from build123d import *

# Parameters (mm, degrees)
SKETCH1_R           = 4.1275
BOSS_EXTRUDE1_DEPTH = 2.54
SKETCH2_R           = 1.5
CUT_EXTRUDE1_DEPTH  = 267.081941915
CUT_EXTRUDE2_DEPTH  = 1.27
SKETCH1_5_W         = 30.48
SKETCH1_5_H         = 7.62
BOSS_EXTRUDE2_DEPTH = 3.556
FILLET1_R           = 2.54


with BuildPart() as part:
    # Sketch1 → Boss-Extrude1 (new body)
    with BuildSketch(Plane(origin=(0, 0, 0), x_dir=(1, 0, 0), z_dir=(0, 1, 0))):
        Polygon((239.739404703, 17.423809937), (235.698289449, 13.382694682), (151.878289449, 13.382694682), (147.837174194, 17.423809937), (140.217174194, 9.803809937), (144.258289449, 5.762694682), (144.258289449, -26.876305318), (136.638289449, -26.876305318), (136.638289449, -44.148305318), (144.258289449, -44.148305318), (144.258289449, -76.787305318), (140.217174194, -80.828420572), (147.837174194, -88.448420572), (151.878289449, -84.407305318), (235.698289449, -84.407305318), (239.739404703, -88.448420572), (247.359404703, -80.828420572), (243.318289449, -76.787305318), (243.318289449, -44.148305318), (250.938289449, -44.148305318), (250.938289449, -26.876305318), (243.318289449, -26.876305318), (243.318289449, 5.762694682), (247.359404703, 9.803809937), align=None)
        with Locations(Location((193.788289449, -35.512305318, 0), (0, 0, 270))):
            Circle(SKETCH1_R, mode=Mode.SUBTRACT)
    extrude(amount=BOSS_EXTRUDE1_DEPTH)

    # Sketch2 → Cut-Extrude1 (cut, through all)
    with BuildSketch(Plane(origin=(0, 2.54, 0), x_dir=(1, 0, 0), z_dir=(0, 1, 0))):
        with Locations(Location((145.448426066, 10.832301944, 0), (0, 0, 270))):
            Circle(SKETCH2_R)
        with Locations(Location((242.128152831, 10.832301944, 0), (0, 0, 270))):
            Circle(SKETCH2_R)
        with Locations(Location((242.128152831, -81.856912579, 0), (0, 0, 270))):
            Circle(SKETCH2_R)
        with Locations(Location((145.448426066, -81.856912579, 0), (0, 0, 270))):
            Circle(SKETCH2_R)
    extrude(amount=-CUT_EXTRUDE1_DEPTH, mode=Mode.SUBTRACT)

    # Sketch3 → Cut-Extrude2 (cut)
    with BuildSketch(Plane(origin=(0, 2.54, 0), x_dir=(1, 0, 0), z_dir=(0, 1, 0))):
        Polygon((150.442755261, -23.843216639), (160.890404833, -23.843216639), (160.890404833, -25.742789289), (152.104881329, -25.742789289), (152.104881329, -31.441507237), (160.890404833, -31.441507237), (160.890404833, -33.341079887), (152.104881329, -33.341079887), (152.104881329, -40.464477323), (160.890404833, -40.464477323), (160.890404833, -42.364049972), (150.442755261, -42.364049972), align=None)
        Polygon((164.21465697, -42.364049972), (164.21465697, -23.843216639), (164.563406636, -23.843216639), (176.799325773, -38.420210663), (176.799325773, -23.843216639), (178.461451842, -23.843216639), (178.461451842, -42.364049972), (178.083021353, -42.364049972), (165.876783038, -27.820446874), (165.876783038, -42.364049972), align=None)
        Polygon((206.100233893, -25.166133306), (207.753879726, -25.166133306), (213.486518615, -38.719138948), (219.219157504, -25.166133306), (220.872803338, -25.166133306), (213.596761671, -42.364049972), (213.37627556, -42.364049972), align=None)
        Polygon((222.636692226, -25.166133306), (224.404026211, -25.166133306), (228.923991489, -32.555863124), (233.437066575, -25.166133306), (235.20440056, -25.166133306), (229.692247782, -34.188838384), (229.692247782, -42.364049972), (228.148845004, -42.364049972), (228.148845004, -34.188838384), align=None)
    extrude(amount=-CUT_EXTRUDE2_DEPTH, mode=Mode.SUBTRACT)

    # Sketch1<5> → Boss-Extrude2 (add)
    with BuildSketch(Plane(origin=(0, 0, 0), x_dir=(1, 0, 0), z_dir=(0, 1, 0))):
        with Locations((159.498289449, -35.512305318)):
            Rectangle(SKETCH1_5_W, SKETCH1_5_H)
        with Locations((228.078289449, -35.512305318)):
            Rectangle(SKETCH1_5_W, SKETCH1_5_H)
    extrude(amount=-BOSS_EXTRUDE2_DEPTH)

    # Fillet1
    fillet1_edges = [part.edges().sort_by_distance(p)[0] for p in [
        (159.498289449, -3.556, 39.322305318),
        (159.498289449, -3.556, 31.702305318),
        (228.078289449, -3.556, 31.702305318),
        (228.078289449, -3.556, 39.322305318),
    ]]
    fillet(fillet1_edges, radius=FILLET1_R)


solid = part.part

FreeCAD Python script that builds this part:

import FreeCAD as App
import Part
import Sketcher
Q = App.Units.Quantity


def edges_at(feature, points):
    """Names of the edges that pass closest to the given points."""
    edges = feature.Shape.Edges
    near = lambda p: min(range(len(edges)), key=lambda i: edges[i].distToShape(Part.Vertex(*p))[0])
    return sorted({f"Edge{near(p) + 1}" for p in points})


def add_polygon(sketch, points):
    """Adds a closed chain of lines whose ends are joined by coincident constraints."""
    first, n = sketch.GeometryCount, len(points)
    for a, b in zip(points, points[1:] + points[:1]):
        sketch.addGeometry(Part.LineSegment(App.Vector(*a, 0), App.Vector(*b, 0)), False)
    for i in range(n):
        sketch.addConstraint(Sketcher.Constraint("Coincident", first + i, 2, first + (i + 1) % n, 1))

doc = App.newDocument("Part")
body = doc.addObject("PartDesign::Body", "Body")

sketch1 = body.newObject("Sketcher::SketchObject", "Sketch")
sketch1.AttachmentSupport = (doc.getObject("XZ_Plane"), [""])
sketch1.MapMode = "FlatFace"
add_polygon(sketch1, [(239.7, -17.4), (235.7, -13.4), (151.9, -13.4), (147.8, -17.4), (140.2, -9.8), (144.3, -5.8), (144.3, 26.9), (136.6, 26.9), (136.6, 44.1), (144.3, 44.1), (144.3, 76.8), (140.2, 80.8), (147.8, 88.4), (151.9, 84.4), (235.7, 84.4), (239.7, 88.4), (247.4, 80.8), (243.3, 76.8), (243.3, 44.1), (250.9, 44.1), (250.9, 26.9), (243.3, 26.9), (243.3, -5.8), (247.4, -9.8)])
sketch1.addGeometry(Part.Circle(App.Vector(193.8, 35.5, 0), App.Vector(0, 0, 1), 4.1), False)
sketch1.addConstraint([
    Sketcher.Constraint("Horizontal", 1),
    Sketcher.Constraint("Vertical", 5),
    Sketcher.Constraint("Horizontal", 6),
    Sketcher.Constraint("Vertical", 7),
    Sketcher.Constraint("Horizontal", 8),
    Sketcher.Constraint("Vertical", 9),
    Sketcher.Constraint("Horizontal", 13),
    Sketcher.Constraint("Vertical", 17),
    Sketcher.Constraint("Horizontal", 18),
    Sketcher.Constraint("Vertical", 19),
    Sketcher.Constraint("Horizontal", 20),
    Sketcher.Constraint("Vertical", 21),
    Sketcher.Constraint("Perpendicular", 0, 2),
    Sketcher.Constraint("Perpendicular", 2, 3),
    Sketcher.Constraint("Perpendicular", 3, 4),
    Sketcher.Constraint("Perpendicular", 4, 10),
    Sketcher.Constraint("Perpendicular", 10, 11),
    Sketcher.Constraint("Perpendicular", 11, 12),
    Sketcher.Constraint("Perpendicular", 12, 14),
    Sketcher.Constraint("Perpendicular", 14, 15),
    Sketcher.Constraint("Perpendicular", 15, 16),
    Sketcher.Constraint("Perpendicular", 16, 22),
    Sketcher.Constraint("Perpendicular", 22, 23),
    Sketcher.Constraint("Horizontal", 11, 2, 14, 2),
    Sketcher.Constraint("Horizontal", 10, 2, 15, 2),
    Sketcher.Constraint("Horizontal", 9, 2, 16, 2),
    Sketcher.Constraint("Horizontal", 8, 2, 17, 2),
    Sketcher.Constraint("Horizontal", 6, 2, 19, 2),
    Sketcher.Constraint("Horizontal", 4, 2, 21, 2),
    Sketcher.Constraint("Horizontal", 3, 2, 22, 2),
    Sketcher.Constraint("Horizontal", 2, 2, 23, 2),
    Sketcher.Constraint("Vertical", 5, 2, 8, 2),
    Sketcher.Constraint("Vertical", 3, 2, 10, 2),
    Sketcher.Constraint("Vertical", 2, 2, 11, 2),
    Sketcher.Constraint("Vertical", 1, 2, 12, 2),
    Sketcher.Constraint("Vertical", 0, 2, 13, 2),
    Sketcher.Constraint("Vertical", 17, 2, 20, 2),
    Sketcher.Constraint("Equal", 8, 18),
    Sketcher.Constraint("Equal", 5, 9),
    Sketcher.Constraint("Equal", 2, 4),
    Sketcher.Constraint("Diameter", 24, Q("0.325 in")),
    Sketcher.Constraint("DistanceX", 1, 2, 1, 1, Q("3.3 in")),
    Sketcher.Constraint("DistanceX", 6, 2, 6, 1, Q("0.3 in")),
    Sketcher.Constraint("DistanceY", 7, 1, 7, 2, Q("0.68 in")),
    Sketcher.Constraint("DistanceX", 3, 2, 2, 2, Q("0.3 in")),
    Sketcher.Constraint("DistanceY", 5, 1, 5, 2, Q("1.285 in")),
    Sketcher.Constraint("DistanceX", 24, 3, 0, 2, Q("1.65 in")),
    Sketcher.Constraint("DistanceY", 5, 2, 24, 3, Q("0.34 in")),
    Sketcher.Constraint("Distance", 0, Q("0.225 in")),
    Sketcher.Constraint("DistanceX", -1, 1, 24, 3, 193.788289),
    Sketcher.Constraint("DistanceY", 2, 2, -1, 1, 17.42381),
])
pad1 = body.newObject("PartDesign::Pad", "Pad")
pad1.Profile = sketch1
pad1.Length = Q("0.1 in")
pad1.Reversed = True

sketch2 = body.newObject("Sketcher::SketchObject", "Sketch001")
sketch2.AttachmentSupport = (doc.getObject("XZ_Plane"), [""])
sketch2.MapMode = "FlatFace"
sketch2.AttachmentOffset = App.Placement(App.Vector(0, 0, -0.1 * 25.4), App.Rotation())
sketch2.addGeometry([
    Part.Circle(App.Vector(145.4, -10.8, 0), App.Vector(0, 0, 1), 1.5),
    Part.Circle(App.Vector(242.1, -10.8, 0), App.Vector(0, 0, 1), 1.5),
    Part.Circle(App.Vector(242.1, 81.9, 0), App.Vector(0, 0, 1), 1.5),
    Part.Circle(App.Vector(145.4, 81.9, 0), App.Vector(0, 0, 1), 1.5),
], False)
sketch2.addConstraint([
    Sketcher.Constraint("Equal", 0, 1),
    Sketcher.Constraint("Equal", 1, 2),
    Sketcher.Constraint("Equal", 2, 3),
    Sketcher.Constraint("Horizontal", 0, 3, 1, 3),
    Sketcher.Constraint("Horizontal", 2, 3, 3, 3),
    Sketcher.Constraint("Vertical", 1, 3, 2, 3),
    Sketcher.Constraint("Vertical", 0, 3, 3, 3),
    Sketcher.Constraint("Diameter", 0, 3.0),
    Sketcher.Constraint("DistanceY", 0, 3, -1, 1, 10.832302),
    Sketcher.Constraint("DistanceX", -1, 1, 0, 3, 145.448426),
    Sketcher.Constraint("DistanceX", -1, 1, 1, 3, 242.128153),
    Sketcher.Constraint("DistanceY", -1, 1, 2, 3, 81.856913),
])
pocket1 = body.newObject("PartDesign::Pocket", "Pocket")
pocket1.Profile = sketch2
pocket1.Type = "ThroughAll"
pocket1.Reversed = True

sketch3 = body.newObject("Sketcher::SketchObject", "Sketch002")
sketch3.AttachmentSupport = (doc.getObject("XZ_Plane"), [""])
sketch3.MapMode = "FlatFace"
sketch3.AttachmentOffset = App.Placement(App.Vector(0, 0, -0.1 * 25.4), App.Rotation())
add_polygon(sketch3, [(160.89, 23.84), (150.44, 23.84), (150.44, 42.36), (160.89, 42.36), (160.89, 40.46), (152.1, 40.46), (152.1, 33.34), (160.89, 33.34), (160.89, 31.44), (152.1, 31.44), (152.1, 25.74), (160.89, 25.74)])
add_polygon(sketch3, [(164.21, 23.84), (164.21, 42.36), (165.88, 42.36), (165.88, 27.82), (178.08, 42.36), (178.46, 42.36), (178.46, 23.84), (176.8, 23.84), (176.8, 38.42), (164.56, 23.84)])
add_polygon(sketch3, [(207.75, 25.17), (206.1, 25.17), (213.38, 42.36), (213.6, 42.36), (220.87, 25.17), (219.22, 25.17), (213.49, 38.72)])
add_polygon(sketch3, [(224.4, 25.17), (222.64, 25.17), (228.15, 34.19), (228.15, 42.36), (229.69, 42.36), (229.69, 34.19), (235.2, 25.17), (233.44, 25.17), (228.92, 32.56)])
sketch3.addConstraint([
    Sketcher.Constraint("Horizontal", 0),
    Sketcher.Constraint("Vertical", 1),
    Sketcher.Constraint("Horizontal", 2),
    Sketcher.Constraint("Vertical", 3),
    Sketcher.Constraint("Horizontal", 4),
    Sketcher.Constraint("Vertical", 5),
    Sketcher.Constraint("Horizontal", 6),
    Sketcher.Constraint("Vertical", 7),
    Sketcher.Constraint("Horizontal", 8),
    Sketcher.Constraint("Vertical", 9),
    Sketcher.Constraint("Horizontal", 10),
    Sketcher.Constraint("Vertical", 11),
    Sketcher.Constraint("Vertical", 12),
    Sketcher.Constraint("Horizontal", 13),
    Sketcher.Constraint("Vertical", 14),
    Sketcher.Constraint("Horizontal", 16),
    Sketcher.Constraint("Vertical", 17),
    Sketcher.Constraint("Horizontal", 18),
    Sketcher.Constraint("Vertical", 19),
    Sketcher.Constraint("Horizontal", 21),
    Sketcher.Constraint("Horizontal", 22),
    Sketcher.Constraint("Horizontal", 24),
    Sketcher.Constraint("Horizontal", 26),
    Sketcher.Constraint("Horizontal", 29),
    Sketcher.Constraint("Vertical", 31),
    Sketcher.Constraint("Horizontal", 32),
    Sketcher.Constraint("Vertical", 33),
    Sketcher.Constraint("Horizontal", 35),
    Sketcher.Constraint("Horizontal", 2, 2, 12, 2),
    Sketcher.Constraint("Horizontal", 13, 2, 15, 2),
    Sketcher.Constraint("Horizontal", 11, 2, 17, 2),
    Sketcher.Constraint("Horizontal", 18, 2, 20, 2),
    Sketcher.Constraint("Horizontal", 16, 2, 23, 2),
    Sketcher.Constraint("Horizontal", 22, 2, 25, 2),
    Sketcher.Constraint("Horizontal", 28, 2, 29, 2),
    Sketcher.Constraint("Horizontal", 24, 2, 31, 2),
    Sketcher.Constraint("Horizontal", 30, 2, 33, 2),
    Sketcher.Constraint("Horizontal", 29, 2, 34, 2),
    Sketcher.Constraint("Vertical", 3, 2, 6, 2),
    Sketcher.Constraint("Vertical", 5, 2, 8, 2),
    Sketcher.Constraint("Vertical", 7, 2, 10, 2),
    Sketcher.Constraint("Equal", 13, 18),
    Sketcher.Constraint("Equal", 22, 26),
    Sketcher.Constraint("Equal", 29, 35),
    Sketcher.Constraint("Equal", 3, 7),
    Sketcher.Constraint("Equal", 7, 11),
    Sketcher.Constraint("Equal", 23, 25),
    Sketcher.Constraint("Equal", 27, 28),
    Sketcher.Constraint("Equal", 30, 34),
    Sketcher.Constraint("DistanceX", 0, 2, 0, 1, 10.44765),
    Sketcher.Constraint("DistanceX", 16, 1, 16, 2, 0.37843),
    Sketcher.Constraint("DistanceX", 21, 2, 21, 1, 0.34875),
    Sketcher.Constraint("DistanceY", 31, 1, 31, 2, 8.175212),
    Sketcher.Constraint("DistanceX", -1, 1, 34, 2, 235.204401),
    Sketcher.Constraint("DistanceX", 11, 2, 20, 2, 3.673002),
    Sketcher.Constraint("DistanceY", 30, 2, 27, 2, 4.530301),
    Sketcher.Constraint("DistanceX", 29, 2, 36, 2, 6.287299),
    Sketcher.Constraint("Distance", 27, 14.71554),
    Sketcher.Constraint("Distance", 37, 8.662459),
    Sketcher.Constraint("DistanceX", 4, 2, 4, 1, 8.785524),
    Sketcher.Constraint("DistanceX", 13, 1, 13, 2, 1.662126),
    Sketcher.Constraint("DistanceX", 22, 2, 22, 1, 1.653646),
    Sketcher.Constraint("DistanceX", 24, 1, 24, 2, 0.220486),
    Sketcher.Constraint("DistanceX", 29, 2, 29, 1, 1.767334),
    Sketcher.Constraint("DistanceX", 32, 1, 32, 2, 1.543403),
    Sketcher.Constraint("DistanceY", 1, 1, 1, 2, 18.520833),
    Sketcher.Constraint("DistanceY", 3, 2, 3, 1, 1.899573),
    Sketcher.Constraint("DistanceY", 5, 2, 5, 1, 7.123397),
    Sketcher.Constraint("DistanceY", 14, 2, 14, 1, 14.543603),
    Sketcher.Constraint("DistanceY", 19, 1, 19, 2, 14.576994),
    Sketcher.Constraint("DistanceY", -1, 1, 1, 2, 42.36405),
    Sketcher.Constraint("DistanceX", -1, 1, 4, 2, 152.104881),
    Sketcher.Constraint("DistanceX", -1, 1, 15, 2, 178.083021),
    Sketcher.Constraint("DistanceX", -1, 1, 24, 2, 213.596762),
    Sketcher.Constraint("DistanceX", -1, 1, 28, 2, 207.75388),
    Sketcher.Constraint("DistanceX", -1, 1, 36, 2, 228.923991),
])
pocket2 = body.newObject("PartDesign::Pocket", "Pocket001")
pocket2.Profile = sketch3
pocket2.Length = Q("0.05 in")
pocket2.Reversed = True

sketch4 = body.newObject("Sketcher::SketchObject", "Sketch003")
sketch4.AttachmentSupport = (doc.getObject("XZ_Plane"), [""])
sketch4.MapMode = "FlatFace"
add_polygon(sketch4, [(144, 32), (144, 39), (175, 39), (175, 32)])
add_polygon(sketch4, [(213, 32), (213, 39), (243, 39), (243, 32)])
sketch4.addConstraint([
    Sketcher.Constraint("Vertical", 0),
    Sketcher.Constraint("Horizontal", 1),
    Sketcher.Constraint("Vertical", 2),
    Sketcher.Constraint("Horizontal", 3),
    Sketcher.Constraint("Vertical", 4),
    Sketcher.Constraint("Horizontal", 5),
    Sketcher.Constraint("Vertical", 6),
    Sketcher.Constraint("Horizontal", 7),
    Sketcher.Constraint("Horizontal", 1, 2, 4, 2),
    Sketcher.Constraint("Horizontal", 3, 2, 6, 2),
    Sketcher.Constraint("Equal", 3, 5),
    Sketcher.Constraint("DistanceX", 1, 1, 1, 2, Q("1.2 in")),
    Sketcher.Constraint("DistanceY", 0, 1, 0, 2, Q("0.3 in")),
    Sketcher.Constraint("DistanceX", 1, 2, 4, 2, Q("1.5 in")),
    Sketcher.Constraint("DistanceX", -1, 1, 0, 2, 144.258289),
    Sketcher.Constraint("DistanceY", -1, 1, 0, 2, 39.322305),
])
pad2 = body.newObject("PartDesign::Pad", "Pad001")
pad2.Profile = sketch4
pad2.Length = Q("0.14 in")
doc.recompute()

fillet = body.newObject("PartDesign::Fillet", "Fillet")
fillet.Base = (pad2, edges_at(pad2, [
    (159.498, -3.556, 39.322),
    (159.498, -3.556, 31.702),
    (228.078, -3.556, 31.702),
    (228.078, -3.556, 39.322),
]))
fillet.Radius = Q("0.1 in")

doc.recompute()
